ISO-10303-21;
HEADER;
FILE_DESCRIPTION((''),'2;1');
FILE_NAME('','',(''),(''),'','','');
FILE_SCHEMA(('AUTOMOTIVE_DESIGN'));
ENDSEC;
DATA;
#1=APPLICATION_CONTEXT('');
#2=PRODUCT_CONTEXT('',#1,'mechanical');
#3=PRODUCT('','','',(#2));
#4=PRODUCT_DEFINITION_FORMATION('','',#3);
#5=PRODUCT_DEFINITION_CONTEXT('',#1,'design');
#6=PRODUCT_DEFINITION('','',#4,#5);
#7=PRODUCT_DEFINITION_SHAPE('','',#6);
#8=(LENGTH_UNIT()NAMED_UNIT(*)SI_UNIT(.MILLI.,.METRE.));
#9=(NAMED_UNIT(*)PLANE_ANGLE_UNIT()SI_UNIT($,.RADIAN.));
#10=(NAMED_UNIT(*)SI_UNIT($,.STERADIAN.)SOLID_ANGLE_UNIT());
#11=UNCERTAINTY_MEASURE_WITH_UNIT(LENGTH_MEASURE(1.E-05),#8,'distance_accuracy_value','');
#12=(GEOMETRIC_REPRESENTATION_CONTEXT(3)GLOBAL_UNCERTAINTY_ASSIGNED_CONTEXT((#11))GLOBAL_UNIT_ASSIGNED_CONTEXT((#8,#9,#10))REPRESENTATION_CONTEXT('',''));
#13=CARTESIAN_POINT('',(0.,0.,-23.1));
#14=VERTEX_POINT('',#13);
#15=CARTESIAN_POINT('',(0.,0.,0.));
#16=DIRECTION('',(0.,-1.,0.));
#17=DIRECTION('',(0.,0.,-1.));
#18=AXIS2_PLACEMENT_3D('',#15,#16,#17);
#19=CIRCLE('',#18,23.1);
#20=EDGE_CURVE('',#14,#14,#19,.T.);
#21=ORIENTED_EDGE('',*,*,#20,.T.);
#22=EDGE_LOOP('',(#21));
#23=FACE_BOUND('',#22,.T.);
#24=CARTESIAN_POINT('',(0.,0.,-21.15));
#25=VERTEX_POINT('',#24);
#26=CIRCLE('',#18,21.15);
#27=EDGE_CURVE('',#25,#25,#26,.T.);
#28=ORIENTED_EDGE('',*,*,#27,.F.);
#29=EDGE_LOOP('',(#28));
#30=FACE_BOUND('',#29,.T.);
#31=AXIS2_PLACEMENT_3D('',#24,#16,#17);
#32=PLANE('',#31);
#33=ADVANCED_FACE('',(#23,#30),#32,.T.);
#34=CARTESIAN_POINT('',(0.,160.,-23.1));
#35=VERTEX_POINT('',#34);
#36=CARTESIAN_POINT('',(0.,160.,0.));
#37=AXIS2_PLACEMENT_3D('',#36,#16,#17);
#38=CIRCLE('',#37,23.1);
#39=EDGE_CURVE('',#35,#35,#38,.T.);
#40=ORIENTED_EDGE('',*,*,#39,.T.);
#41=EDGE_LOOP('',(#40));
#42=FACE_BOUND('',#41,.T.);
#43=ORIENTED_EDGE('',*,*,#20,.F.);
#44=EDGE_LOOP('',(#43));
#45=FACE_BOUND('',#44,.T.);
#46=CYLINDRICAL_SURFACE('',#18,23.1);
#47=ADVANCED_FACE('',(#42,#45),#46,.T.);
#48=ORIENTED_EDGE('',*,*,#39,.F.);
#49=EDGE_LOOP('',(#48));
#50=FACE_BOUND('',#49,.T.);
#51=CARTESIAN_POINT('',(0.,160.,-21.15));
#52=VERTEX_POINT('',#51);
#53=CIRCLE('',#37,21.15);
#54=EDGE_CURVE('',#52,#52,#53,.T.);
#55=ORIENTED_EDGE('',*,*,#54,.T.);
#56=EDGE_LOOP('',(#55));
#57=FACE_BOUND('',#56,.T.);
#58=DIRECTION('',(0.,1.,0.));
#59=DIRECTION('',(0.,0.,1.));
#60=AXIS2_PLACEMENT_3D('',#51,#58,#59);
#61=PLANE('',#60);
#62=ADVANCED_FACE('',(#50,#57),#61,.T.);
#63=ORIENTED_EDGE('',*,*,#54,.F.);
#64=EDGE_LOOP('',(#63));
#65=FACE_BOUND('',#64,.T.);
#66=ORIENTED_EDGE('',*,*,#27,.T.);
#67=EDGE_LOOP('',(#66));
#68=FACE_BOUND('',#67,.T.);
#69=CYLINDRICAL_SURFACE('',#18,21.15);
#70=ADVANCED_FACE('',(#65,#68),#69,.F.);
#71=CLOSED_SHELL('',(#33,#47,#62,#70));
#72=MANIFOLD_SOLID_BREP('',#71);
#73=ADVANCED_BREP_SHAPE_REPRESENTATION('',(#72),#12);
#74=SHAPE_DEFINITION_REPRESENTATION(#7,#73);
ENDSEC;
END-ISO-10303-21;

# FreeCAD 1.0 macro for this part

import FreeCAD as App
import Part
import Sketcher

doc = App.newDocument("Part")
params = doc.addObject("Spreadsheet::Sheet", "Params")
for row, (alias, value) in enumerate([
    ("sketch1_width", "160 mm"),
    ("sketch1_height", "1.95 mm"),
    ("revolution_angle", "360 deg"),
], start=1):
    params.set(f"A{row}", alias)
    params.set(f"B{row}", "=" + value)
    params.setAlias(f"B{row}", alias)

body = doc.addObject("PartDesign::Body", "Body")

# Sketch on YZ plane
sketch1 = doc.addObject("Sketcher::SketchObject", "Sketch")
body.addObject(sketch1)
sketch1.AttachmentSupport = (doc.YZ_Plane, [""])
sketch1.MapMode = "FlatFace"
sketch1.addGeometry([
    Part.LineSegment(App.Vector(160, -21.1, 0), App.Vector(0, -21.1, 0)),
    Part.LineSegment(App.Vector(0, -21.1, 0), App.Vector(0, -23.1, 0)),
    Part.LineSegment(App.Vector(0, -23.1, 0), App.Vector(160, -23.1, 0)),
    Part.LineSegment(App.Vector(160, -23.1, 0), App.Vector(160, -21.1, 0)),
], False)
sketch1.addConstraint([
    Sketcher.Constraint("Coincident", 0, 2, 1, 1),
    Sketcher.Constraint("Coincident", 1, 2, 2, 1),
    Sketcher.Constraint("Coincident", 2, 2, 3, 1),
    Sketcher.Constraint("Coincident", 3, 2, 0, 1),
    Sketcher.Constraint("Horizontal", 0),
    Sketcher.Constraint("Vertical", 1),
    Sketcher.Constraint("Horizontal", 2),
    Sketcher.Constraint("Vertical", 3),
    Sketcher.Constraint("PointOnObject", 0, 2, -2),
    Sketcher.Constraint("DistanceX", 0, 2, 0, 1, 160.0),
    Sketcher.Constraint("DistanceY", 1, 2, 1, 1, 1.95),
    Sketcher.Constraint("DistanceY", 1, 2, -1, 1, 23.1),
])
sketch1.setExpression("Constraints[9]", "Params.sketch1_width")
sketch1.setExpression("Constraints[10]", "Params.sketch1_height")
revolution = doc.addObject("PartDesign::Revolution", "Revolution")
body.addObject(revolution)
revolution.Profile = sketch1
revolution.ReferenceAxis = (sketch1, ["H_Axis"])
revolution.setExpression("Angle", "Params.revolution_angle")

doc.recompute()
